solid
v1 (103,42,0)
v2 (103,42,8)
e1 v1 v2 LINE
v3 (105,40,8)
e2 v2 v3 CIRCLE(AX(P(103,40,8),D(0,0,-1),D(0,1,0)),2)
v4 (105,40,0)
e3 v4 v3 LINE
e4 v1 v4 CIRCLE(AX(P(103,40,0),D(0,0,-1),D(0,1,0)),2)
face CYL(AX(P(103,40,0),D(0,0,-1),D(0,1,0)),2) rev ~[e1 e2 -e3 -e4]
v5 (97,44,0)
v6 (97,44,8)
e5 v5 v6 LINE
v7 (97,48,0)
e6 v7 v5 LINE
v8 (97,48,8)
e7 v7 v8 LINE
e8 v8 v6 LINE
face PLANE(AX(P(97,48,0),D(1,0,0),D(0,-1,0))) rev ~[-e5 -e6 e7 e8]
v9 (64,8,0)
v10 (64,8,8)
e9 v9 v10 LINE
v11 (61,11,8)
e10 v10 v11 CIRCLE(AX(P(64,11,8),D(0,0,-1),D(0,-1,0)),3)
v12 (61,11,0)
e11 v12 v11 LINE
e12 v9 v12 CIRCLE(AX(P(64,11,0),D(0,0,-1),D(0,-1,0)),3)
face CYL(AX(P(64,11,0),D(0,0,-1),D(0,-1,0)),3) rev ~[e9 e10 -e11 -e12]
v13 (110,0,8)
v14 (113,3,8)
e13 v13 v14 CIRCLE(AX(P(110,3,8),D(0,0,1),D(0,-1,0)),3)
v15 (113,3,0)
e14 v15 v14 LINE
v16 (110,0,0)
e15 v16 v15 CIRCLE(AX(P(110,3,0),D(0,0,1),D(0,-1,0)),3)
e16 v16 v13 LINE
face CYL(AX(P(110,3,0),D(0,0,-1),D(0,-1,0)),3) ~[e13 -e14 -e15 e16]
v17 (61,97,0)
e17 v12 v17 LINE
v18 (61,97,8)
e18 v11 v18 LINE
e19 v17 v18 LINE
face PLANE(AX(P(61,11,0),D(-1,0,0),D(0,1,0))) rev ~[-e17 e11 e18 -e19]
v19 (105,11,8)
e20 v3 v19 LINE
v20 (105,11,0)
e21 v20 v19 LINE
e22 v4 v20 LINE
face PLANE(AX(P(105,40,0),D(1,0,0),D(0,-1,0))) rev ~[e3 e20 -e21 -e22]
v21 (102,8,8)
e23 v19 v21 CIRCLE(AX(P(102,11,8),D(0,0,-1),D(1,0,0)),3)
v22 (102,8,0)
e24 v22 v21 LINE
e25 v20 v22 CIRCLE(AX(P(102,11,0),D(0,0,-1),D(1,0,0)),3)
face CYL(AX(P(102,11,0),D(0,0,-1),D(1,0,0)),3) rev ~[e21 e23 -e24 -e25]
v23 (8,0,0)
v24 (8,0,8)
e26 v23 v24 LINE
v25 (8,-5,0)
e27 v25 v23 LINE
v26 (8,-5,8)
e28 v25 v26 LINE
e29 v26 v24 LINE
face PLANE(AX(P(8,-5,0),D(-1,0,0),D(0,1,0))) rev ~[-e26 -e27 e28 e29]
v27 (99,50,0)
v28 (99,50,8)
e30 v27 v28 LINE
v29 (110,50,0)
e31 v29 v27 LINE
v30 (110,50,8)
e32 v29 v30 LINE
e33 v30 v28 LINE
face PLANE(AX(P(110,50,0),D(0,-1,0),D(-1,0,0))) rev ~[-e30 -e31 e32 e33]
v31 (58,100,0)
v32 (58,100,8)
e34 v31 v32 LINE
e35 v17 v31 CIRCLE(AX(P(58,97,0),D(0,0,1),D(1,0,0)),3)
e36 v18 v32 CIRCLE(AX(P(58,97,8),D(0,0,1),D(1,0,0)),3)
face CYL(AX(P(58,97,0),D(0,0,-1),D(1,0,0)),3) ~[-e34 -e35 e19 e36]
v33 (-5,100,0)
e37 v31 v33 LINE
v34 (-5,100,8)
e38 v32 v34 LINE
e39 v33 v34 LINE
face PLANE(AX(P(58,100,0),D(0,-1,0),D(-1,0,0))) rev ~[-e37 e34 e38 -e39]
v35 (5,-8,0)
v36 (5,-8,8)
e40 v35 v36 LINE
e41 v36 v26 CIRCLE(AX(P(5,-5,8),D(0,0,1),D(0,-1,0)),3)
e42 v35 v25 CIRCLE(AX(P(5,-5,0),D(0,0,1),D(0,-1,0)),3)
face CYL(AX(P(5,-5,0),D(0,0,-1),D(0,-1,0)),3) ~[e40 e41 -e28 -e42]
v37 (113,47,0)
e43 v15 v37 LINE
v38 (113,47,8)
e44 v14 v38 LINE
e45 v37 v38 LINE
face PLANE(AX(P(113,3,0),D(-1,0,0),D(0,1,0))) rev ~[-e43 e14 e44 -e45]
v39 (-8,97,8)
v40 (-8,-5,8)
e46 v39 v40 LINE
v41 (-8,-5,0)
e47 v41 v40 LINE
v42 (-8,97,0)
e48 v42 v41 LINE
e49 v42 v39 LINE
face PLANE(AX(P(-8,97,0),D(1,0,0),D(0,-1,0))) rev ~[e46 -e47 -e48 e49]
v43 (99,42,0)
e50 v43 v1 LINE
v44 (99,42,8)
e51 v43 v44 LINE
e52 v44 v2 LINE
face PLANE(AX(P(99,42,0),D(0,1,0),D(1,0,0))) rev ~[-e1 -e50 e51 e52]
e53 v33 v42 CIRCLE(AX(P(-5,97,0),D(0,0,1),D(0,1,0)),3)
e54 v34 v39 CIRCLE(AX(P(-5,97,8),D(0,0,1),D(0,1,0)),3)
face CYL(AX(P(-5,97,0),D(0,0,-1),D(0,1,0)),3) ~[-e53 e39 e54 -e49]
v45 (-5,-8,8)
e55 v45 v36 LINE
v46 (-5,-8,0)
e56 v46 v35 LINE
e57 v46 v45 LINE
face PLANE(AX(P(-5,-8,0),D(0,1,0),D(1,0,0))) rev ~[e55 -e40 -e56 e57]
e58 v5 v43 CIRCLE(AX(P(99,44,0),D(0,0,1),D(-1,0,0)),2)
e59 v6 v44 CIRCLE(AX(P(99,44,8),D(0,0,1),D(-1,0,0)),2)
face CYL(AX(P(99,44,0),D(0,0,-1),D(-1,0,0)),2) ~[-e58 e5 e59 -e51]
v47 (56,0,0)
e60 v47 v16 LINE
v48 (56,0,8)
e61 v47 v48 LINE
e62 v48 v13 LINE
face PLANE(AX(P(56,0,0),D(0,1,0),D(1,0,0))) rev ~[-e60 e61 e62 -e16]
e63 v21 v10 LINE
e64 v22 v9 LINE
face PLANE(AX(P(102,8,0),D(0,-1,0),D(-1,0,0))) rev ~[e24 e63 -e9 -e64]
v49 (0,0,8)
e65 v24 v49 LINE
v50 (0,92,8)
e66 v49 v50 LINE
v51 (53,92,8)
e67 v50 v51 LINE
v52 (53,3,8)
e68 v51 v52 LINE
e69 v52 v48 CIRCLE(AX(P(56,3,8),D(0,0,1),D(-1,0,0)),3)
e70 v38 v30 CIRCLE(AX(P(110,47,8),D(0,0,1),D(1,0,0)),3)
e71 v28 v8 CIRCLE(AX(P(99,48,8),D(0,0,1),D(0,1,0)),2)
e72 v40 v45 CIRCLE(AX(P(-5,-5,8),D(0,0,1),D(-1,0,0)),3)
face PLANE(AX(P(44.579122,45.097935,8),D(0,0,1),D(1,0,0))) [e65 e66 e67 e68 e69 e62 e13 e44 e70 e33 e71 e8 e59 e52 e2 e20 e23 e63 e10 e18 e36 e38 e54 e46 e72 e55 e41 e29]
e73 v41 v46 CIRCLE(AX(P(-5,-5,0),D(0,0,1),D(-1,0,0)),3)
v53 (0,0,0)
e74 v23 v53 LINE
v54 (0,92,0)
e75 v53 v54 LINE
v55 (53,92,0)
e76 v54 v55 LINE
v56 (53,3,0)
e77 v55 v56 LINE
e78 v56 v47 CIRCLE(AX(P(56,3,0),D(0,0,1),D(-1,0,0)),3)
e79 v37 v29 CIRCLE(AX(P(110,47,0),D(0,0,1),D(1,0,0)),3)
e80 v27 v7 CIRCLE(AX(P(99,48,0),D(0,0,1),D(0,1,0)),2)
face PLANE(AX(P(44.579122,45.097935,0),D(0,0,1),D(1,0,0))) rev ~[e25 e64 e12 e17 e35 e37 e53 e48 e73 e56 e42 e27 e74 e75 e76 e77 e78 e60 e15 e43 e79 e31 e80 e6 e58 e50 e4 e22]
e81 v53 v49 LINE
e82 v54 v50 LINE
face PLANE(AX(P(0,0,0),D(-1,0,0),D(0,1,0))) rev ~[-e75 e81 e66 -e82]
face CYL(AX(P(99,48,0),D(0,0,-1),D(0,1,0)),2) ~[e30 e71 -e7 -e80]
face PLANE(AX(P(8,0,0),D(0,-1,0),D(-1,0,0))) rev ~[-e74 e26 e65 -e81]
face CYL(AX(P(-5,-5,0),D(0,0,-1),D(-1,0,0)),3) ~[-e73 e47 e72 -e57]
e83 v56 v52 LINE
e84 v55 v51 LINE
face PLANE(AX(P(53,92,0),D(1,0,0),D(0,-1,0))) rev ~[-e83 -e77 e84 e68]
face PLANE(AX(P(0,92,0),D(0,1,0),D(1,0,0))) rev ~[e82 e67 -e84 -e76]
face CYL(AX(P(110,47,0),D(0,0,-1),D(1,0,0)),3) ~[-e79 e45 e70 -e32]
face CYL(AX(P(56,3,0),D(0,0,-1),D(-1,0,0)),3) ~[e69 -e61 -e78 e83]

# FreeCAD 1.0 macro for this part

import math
import FreeCAD as App
import Part
import Sketcher
Q = App.Units.Quantity

doc = App.newDocument("Part")
body = doc.addObject("PartDesign::Body", "Body")

# Sketch on XY plane
sketch1 = doc.addObject("Sketcher::SketchObject", "Sketch")
body.addObject(sketch1)
sketch1.AttachmentSupport = (doc.XY_Plane, [""])
sketch1.MapMode = "FlatFace"
sketch1.addGeometry([
    Part.LineSegment(App.Vector(8, 0, 0), App.Vector(0, 0, 0)),  # 0
    Part.LineSegment(App.Vector(0, 0, 0), App.Vector(0, 92, 0)),  # 1
    Part.LineSegment(App.Vector(0, 92, 0), App.Vector(53, 92, 0)),  # 2
    Part.LineSegment(App.Vector(53, 92, 0), App.Vector(53, 3, 0)),  # 3
    Part.ArcOfCircle(Part.Circle(App.Vector(56, 3, 0), App.Vector(0, 0, 1), 3), math.radians(180), math.radians(270)),  # 4
    Part.LineSegment(App.Vector(56, 0, 0), App.Vector(110, 0, 0)),  # 5
    Part.ArcOfCircle(Part.Circle(App.Vector(110, 3, 0), App.Vector(0, 0, 1), 3), math.radians(-90), math.radians(0)),  # 6
    Part.LineSegment(App.Vector(113, 3, 0), App.Vector(113, 47, 0)),  # 7
    Part.ArcOfCircle(Part.Circle(App.Vector(110, 47, 0), App.Vector(0, 0, 1), 3), math.radians(0), math.radians(90)),  # 8
    Part.LineSegment(App.Vector(110, 50, 0), App.Vector(99, 50, 0)),  # 9
    Part.ArcOfCircle(Part.Circle(App.Vector(99, 48, 0), App.Vector(0, 0, 1), 2), math.radians(90), math.radians(180)),  # 10
    Part.LineSegment(App.Vector(97, 48, 0), App.Vector(97, 44, 0)),  # 11
    Part.ArcOfCircle(Part.Circle(App.Vector(99, 44, 0), App.Vector(0, 0, 1), 2), math.radians(180), math.radians(270)),  # 12
    Part.LineSegment(App.Vector(99, 42, 0), App.Vector(103, 42, 0)),  # 13
    Part.ArcOfCircle(Part.Circle(App.Vector(103, 40, 0), App.Vector(0, 0, 1), 2), math.radians(0), math.radians(90)),  # 14
    Part.LineSegment(App.Vector(105, 40, 0), App.Vector(105, 11, 0)),  # 15
    Part.ArcOfCircle(Part.Circle(App.Vector(102, 11, 0), App.Vector(0, 0, 1), 3), math.radians(-90), math.radians(0)),  # 16
    Part.LineSegment(App.Vector(102, 8, 0), App.Vector(64, 8, 0)),  # 17
    Part.ArcOfCircle(Part.Circle(App.Vector(64, 11, 0), App.Vector(0, 0, 1), 3), math.radians(180), math.radians(270)),  # 18
    Part.LineSegment(App.Vector(61, 11, 0), App.Vector(61, 97, 0)),  # 19
    Part.ArcOfCircle(Part.Circle(App.Vector(58, 97, 0), App.Vector(0, 0, 1), 3), math.radians(0), math.radians(90)),  # 20
    Part.LineSegment(App.Vector(58, 100, 0), App.Vector(-5, 100, 0)),  # 21
    Part.ArcOfCircle(Part.Circle(App.Vector(-5, 97, 0), App.Vector(0, 0, 1), 3), math.radians(90), math.radians(180)),  # 22
    Part.LineSegment(App.Vector(-8, 97, 0), App.Vector(-8, -5, 0)),  # 23
    Part.ArcOfCircle(Part.Circle(App.Vector(-5, -5, 0), App.Vector(0, 0, 1), 3), math.radians(180), math.radians(270)),  # 24
    Part.LineSegment(App.Vector(-5, -8, 0), App.Vector(5, -8, 0)),  # 25
    Part.ArcOfCircle(Part.Circle(App.Vector(5, -5, 0), App.Vector(0, 0, 1), 3), math.radians(-90), math.radians(0)),  # 26
    Part.LineSegment(App.Vector(8, -5, 0), App.Vector(8, 0, 0)),  # 27
], False)
sketch1.addConstraint([
    Sketcher.Constraint("Coincident", 0, 2, 1, 1),
    Sketcher.Constraint("Coincident", 1, 2, 2, 1),
    Sketcher.Constraint("Coincident", 2, 2, 3, 1),
    Sketcher.Constraint("Tangent", 3, 2, 4, 1),
    Sketcher.Constraint("Tangent", 4, 2, 5, 1),
    Sketcher.Constraint("Tangent", 5, 2, 6, 1),
    Sketcher.Constraint("Tangent", 6, 2, 7, 1),
    Sketcher.Constraint("Tangent", 7, 2, 8, 1),
    Sketcher.Constraint("Tangent", 8, 2, 9, 1),
    Sketcher.Constraint("Tangent", 9, 2, 10, 1),
    Sketcher.Constraint("Tangent", 10, 2, 11, 1),
    Sketcher.Constraint("Tangent", 11, 2, 12, 1),
    Sketcher.Constraint("Tangent", 12, 2, 13, 1),
    Sketcher.Constraint("Tangent", 13, 2, 14, 2),
    Sketcher.Constraint("Tangent", 14, 1, 15, 1),
    Sketcher.Constraint("Tangent", 15, 2, 16, 2),
    Sketcher.Constraint("Tangent", 16, 1, 17, 1),
    Sketcher.Constraint("Tangent", 17, 2, 18, 2),
    Sketcher.Constraint("Tangent", 18, 1, 19, 1),
    Sketcher.Constraint("Tangent", 19, 2, 20, 1),
    Sketcher.Constraint("Tangent", 20, 2, 21, 1),
    Sketcher.Constraint("Tangent", 21, 2, 22, 1),
    Sketcher.Constraint("Tangent", 22, 2, 23, 1),
    Sketcher.Constraint("Tangent", 23, 2, 24, 1),
    Sketcher.Constraint("Tangent", 24, 2, 25, 1),
    Sketcher.Constraint("Tangent", 25, 2, 26, 1),
    Sketcher.Constraint("Tangent", 26, 2, 27, 1),
    Sketcher.Constraint("Coincident", 27, 2, 0, 1),
    Sketcher.Constraint("Horizontal", 0),
    Sketcher.Constraint("Vertical", 1),
    Sketcher.Constraint("Horizontal", 2),
    Sketcher.Constraint("Vertical", 3),
    Sketcher.Constraint("Horizontal", 5),
    Sketcher.Constraint("Vertical", 7),
    Sketcher.Constraint("Horizontal", 9),
    Sketcher.Constraint("Vertical", 11),
    Sketcher.Constraint("Horizontal", 13),
    Sketcher.Constraint("Vertical", 15),
    Sketcher.Constraint("Horizontal", 17),
    Sketcher.Constraint("Vertical", 19),
    Sketcher.Constraint("Horizontal", 21),
    Sketcher.Constraint("Vertical", 23),
    Sketcher.Constraint("Horizontal", 25),
    Sketcher.Constraint("Vertical", 27),
    Sketcher.Constraint("Coincident", 0, 2, -1, 1),
    Sketcher.Constraint("Equal", 4, 6),
    Sketcher.Constraint("Equal", 6, 8),
    Sketcher.Constraint("Equal", 10, 12),
    Sketcher.Constraint("Equal", 12, 14),
    Sketcher.Constraint("Equal", 8, 16),
    Sketcher.Constraint("Equal", 16, 18),
    Sketcher.Constraint("Equal", 18, 20),
    Sketcher.Constraint("Equal", 20, 22),
    Sketcher.Constraint("Equal", 22, 24),
    Sketcher.Constraint("Equal", 24, 26),
    Sketcher.Constraint("PointOnObject", 4, 2, -1),
    Sketcher.Constraint("Equal", 13, 11),
    Sketcher.Constraint("Radius", 4, Q("3 mm")),
    Sketcher.Constraint("Radius", 10, Q("2 mm")),
    Sketcher.Constraint("DistanceX", 0, 2, 0, 1, Q("8 mm")),
    Sketcher.Constraint("DistanceX", 2, 1, 2, 2, Q("53 mm")),
    Sketcher.Constraint("DistanceX", 5, 1, 5, 2, Q("54 mm")),
    Sketcher.Constraint("DistanceX", 9, 2, 9, 1, Q("11 mm")),
    Sketcher.Constraint("DistanceX", 13, 1, 13, 2, Q("4 mm")),
    Sketcher.Constraint("DistanceX", 17, 2, 17, 1, Q("38 mm")),
    Sketcher.Constraint("DistanceX", 21, 2, 21, 1, Q("63 mm")),
    Sketcher.Constraint("DistanceY", 1, 1, 1, 2, Q("92 mm")),
    Sketcher.Constraint("DistanceY", 7, 1, 7, 2, Q("44 mm")),
    Sketcher.Constraint("DistanceY", 15, 2, 15, 1, Q("29 mm")),
    Sketcher.Constraint("DistanceY", 19, 1, 19, 2, Q("86 mm")),
    Sketcher.Constraint("DistanceY", 23, 2, 23, 1, Q("102 mm")),
])
pad1 = doc.addObject("PartDesign::Pad", "Pad")
body.addObject(pad1)
pad1.Profile = sketch1
pad1.Length = 8

doc.recompute()
